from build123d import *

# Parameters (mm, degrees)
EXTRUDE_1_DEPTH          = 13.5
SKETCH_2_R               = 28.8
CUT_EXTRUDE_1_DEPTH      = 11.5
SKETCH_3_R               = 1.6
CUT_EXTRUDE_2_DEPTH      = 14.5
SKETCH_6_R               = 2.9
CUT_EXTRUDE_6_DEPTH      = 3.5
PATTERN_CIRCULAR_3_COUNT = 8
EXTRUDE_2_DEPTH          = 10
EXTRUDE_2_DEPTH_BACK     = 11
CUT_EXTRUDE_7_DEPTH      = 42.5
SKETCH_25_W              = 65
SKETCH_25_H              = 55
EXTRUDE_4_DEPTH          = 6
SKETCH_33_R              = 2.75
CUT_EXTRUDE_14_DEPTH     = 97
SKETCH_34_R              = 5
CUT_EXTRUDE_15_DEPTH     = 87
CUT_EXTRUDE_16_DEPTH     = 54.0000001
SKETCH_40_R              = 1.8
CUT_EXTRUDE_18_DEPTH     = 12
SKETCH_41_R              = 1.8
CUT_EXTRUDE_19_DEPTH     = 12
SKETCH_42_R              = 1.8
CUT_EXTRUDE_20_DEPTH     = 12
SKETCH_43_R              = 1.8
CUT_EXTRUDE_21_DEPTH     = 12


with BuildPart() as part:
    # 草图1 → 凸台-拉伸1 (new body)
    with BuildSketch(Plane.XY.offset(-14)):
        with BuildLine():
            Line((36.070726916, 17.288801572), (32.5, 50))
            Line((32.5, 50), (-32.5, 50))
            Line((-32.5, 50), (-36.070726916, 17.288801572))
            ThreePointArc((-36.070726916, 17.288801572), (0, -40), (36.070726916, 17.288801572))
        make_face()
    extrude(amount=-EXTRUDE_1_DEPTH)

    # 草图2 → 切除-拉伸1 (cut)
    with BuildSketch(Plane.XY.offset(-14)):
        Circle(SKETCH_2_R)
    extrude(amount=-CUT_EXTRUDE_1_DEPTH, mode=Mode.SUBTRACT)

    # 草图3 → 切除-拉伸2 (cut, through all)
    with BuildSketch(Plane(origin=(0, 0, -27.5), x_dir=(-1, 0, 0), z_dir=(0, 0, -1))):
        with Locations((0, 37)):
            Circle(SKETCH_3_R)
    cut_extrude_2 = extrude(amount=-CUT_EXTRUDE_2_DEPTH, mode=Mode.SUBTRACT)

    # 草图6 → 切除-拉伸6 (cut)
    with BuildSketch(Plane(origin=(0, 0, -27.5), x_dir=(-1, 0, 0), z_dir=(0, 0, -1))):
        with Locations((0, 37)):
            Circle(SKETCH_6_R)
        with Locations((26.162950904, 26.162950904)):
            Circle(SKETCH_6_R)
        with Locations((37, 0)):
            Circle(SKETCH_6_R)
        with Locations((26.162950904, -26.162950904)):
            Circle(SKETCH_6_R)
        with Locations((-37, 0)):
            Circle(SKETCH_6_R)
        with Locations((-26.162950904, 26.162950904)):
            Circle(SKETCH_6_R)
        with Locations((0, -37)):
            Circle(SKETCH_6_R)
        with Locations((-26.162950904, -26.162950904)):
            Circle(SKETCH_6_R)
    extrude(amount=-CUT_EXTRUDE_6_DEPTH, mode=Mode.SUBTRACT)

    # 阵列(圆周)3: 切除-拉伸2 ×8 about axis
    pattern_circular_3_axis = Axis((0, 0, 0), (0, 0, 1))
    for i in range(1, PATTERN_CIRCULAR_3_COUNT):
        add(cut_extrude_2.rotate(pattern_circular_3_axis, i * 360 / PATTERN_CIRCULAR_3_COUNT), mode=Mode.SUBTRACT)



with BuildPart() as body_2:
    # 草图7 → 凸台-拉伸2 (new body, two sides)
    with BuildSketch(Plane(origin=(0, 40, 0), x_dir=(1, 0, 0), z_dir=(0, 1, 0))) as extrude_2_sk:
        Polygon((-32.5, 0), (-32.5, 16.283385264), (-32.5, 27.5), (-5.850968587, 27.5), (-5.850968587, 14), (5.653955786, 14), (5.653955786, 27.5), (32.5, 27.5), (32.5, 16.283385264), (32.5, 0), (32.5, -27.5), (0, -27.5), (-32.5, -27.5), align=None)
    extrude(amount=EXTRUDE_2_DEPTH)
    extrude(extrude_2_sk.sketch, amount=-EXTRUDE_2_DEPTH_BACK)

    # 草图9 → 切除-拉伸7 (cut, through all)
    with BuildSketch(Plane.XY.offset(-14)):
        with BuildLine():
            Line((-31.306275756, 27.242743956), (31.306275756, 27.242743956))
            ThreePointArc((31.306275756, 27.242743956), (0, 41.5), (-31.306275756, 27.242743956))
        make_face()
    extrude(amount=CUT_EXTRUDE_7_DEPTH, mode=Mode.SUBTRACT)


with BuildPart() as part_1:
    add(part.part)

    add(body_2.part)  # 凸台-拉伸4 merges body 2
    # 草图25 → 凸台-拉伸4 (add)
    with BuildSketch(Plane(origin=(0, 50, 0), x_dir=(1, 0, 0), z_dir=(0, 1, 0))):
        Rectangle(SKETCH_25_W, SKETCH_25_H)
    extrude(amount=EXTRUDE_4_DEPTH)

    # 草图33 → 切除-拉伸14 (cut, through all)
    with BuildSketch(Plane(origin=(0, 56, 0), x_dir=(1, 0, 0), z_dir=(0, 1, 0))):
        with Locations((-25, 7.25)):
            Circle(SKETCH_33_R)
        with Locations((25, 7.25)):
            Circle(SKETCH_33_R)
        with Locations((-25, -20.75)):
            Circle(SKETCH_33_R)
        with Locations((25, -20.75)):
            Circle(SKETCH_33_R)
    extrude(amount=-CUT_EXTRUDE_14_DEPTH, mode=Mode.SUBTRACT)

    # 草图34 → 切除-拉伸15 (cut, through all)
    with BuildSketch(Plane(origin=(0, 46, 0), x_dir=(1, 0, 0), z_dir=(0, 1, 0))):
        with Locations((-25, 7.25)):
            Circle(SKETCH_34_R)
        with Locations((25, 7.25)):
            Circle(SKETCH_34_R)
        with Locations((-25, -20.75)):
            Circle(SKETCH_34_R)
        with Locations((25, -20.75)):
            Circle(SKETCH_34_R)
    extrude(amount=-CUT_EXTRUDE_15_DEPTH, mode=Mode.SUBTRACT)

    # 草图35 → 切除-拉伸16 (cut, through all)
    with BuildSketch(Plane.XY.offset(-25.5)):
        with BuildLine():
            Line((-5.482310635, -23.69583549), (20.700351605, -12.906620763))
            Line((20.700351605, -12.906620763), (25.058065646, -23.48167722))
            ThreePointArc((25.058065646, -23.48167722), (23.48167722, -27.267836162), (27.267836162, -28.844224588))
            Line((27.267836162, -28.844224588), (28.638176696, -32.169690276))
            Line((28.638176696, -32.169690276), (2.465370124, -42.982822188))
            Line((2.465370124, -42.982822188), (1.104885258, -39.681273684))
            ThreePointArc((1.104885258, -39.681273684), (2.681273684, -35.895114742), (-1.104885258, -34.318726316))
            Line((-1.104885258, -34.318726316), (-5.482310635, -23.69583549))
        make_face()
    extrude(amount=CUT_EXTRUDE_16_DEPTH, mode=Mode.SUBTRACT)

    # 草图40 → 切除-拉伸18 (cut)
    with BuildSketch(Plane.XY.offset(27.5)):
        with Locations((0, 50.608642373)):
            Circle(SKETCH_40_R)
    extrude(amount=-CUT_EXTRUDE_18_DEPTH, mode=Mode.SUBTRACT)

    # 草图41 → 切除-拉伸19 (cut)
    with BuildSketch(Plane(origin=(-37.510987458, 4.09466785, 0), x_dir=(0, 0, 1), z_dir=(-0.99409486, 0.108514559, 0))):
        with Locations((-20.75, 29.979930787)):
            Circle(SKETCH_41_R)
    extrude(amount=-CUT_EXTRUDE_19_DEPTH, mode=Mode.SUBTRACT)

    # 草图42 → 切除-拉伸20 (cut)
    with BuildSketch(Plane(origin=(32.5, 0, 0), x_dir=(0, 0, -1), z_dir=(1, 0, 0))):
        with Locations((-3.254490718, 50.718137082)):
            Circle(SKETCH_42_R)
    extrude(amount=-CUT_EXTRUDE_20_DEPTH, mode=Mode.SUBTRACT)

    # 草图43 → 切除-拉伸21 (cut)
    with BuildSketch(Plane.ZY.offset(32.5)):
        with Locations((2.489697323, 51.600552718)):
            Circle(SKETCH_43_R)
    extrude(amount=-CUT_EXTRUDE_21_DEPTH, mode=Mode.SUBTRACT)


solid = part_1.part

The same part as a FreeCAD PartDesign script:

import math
import FreeCAD as App
import Part
import Sketcher

V = App.Vector
Q = App.Units.Quantity


def add_polygon(sketch, points):
    """Adds a closed chain of lines whose ends are joined by coincident constraints."""
    first, n = sketch.GeometryCount, len(points)
    for a, b in zip(points, points[1:] + points[:1]):
        sketch.addGeometry(Part.LineSegment(App.Vector(*a, 0), App.Vector(*b, 0)), False)
    for i in range(n):
        sketch.addConstraint(Sketcher.Constraint("Coincident", first + i, 2, first + (i + 1) % n, 1))

doc = App.newDocument("Part")
params = doc.addObject("Spreadsheet::Sheet", "Params")
for row, (alias, value) in enumerate([
    ("sketch1_radius", "40 mm"),
    ("sketch1_width", "65 mm"),
    ("pad1_length", "13.5 mm"),
    ("sketch2_diameter", "57.6 mm"),
    ("pocket1_length", "11.5 mm"),
    ("sketch3_diameter", "3.2 mm"),
    ("sketch4_diameter", "5.8 mm"),
    ("pocket3_length", "3.5 mm"),
    ("sketch5_width", "65 mm"),
    ("sketch5_height", "55 mm"),
    ("sketch5_height2", "13.5 mm"),
    ("pad2_length", "10 mm"),
    ("pad2_length2", "11 mm"),
    ("sketch6_radius", "41.5 mm"),
    ("sketch7_width", "65 mm"),
    ("sketch7_height", "55 mm"),
    ("pad3_length", "6 mm"),
    ("sketch8_diameter", "5.5 mm"),
    ("sketch9_diameter", "10 mm"),
    ("sketch10_radius", "2.9 mm"),
    ("sketch11_diameter", "3.6 mm"),
    ("pocket8_length", "12 mm"),
    ("sketch12_diameter", "3.6 mm"),
    ("pocket9_length", "12 mm"),
    ("sketch13_diameter", "3.6 mm"),
    ("pocket10_length", "12 mm"),
    ("sketch14_diameter", "3.6 mm"),
    ("pocket11_length", "12 mm"),
], start=1):
    params.set(f"A{row}", alias)
    params.set(f"B{row}", "=" + value)
    params.setAlias(f"B{row}", alias)

body = doc.addObject("PartDesign::Body", "Body")

sketch1 = body.newObject("Sketcher::SketchObject", "Sketch")
sketch1.AttachmentSupport = (doc.getObject("XY_Plane"), [""])
sketch1.MapMode = "FlatFace"
sketch1.AttachmentOffset = App.Placement(V(0, 0, -14), App.Rotation())
sketch1.addGeometry([
    Part.LineSegment(V(36, 17, 0), V(32, 50, 0)),
    Part.LineSegment(V(32, 50, 0), V(-32, 50, 0)),
    Part.LineSegment(V(-32, 50, 0), V(-36, 17, 0)),
    Part.ArcOfCircle(Part.Circle(V(0, 0, 0), V(0, 0, 1), 40), math.radians(154), math.radians(386)),
], False)
sketch1.addConstraint([
    Sketcher.Constraint("Coincident", 0, 2, 1, 1),
    Sketcher.Constraint("Coincident", 1, 2, 2, 1),
    Sketcher.Constraint("Coincident", 2, 2, 3, 1),
    Sketcher.Constraint("Coincident", 3, 2, 0, 1),
    Sketcher.Constraint("Horizontal", 1),
    Sketcher.Constraint("Coincident", 3, 3, -1, 1),
    Sketcher.Constraint("Horizontal", 2, 2, 3, 2),
    Sketcher.Constraint("Equal", 0, 2),
    Sketcher.Constraint("Radius", 3, Q("40 mm")),
    Sketcher.Constraint("DistanceX", 1, 2, 1, 1, Q("65 mm")),
    Sketcher.Constraint("DistanceY", -1, 1, 0, 2, Q("50 mm")),
    Sketcher.Constraint("DistanceY", -1, 1, 2, 2, Q("17.288802 mm")),
])
sketch1.setExpression("Constraints[8]", "Params.sketch1_radius")
sketch1.setExpression("Constraints[9]", "Params.sketch1_width")
pad1 = body.newObject("PartDesign::Pad", "Pad")
pad1.Profile = sketch1
pad1.setExpression("Length", "Params.pad1_length")
pad1.Reversed = True

sketch2 = body.newObject("Sketcher::SketchObject", "Sketch001")
sketch2.AttachmentSupport = (doc.getObject("XY_Plane"), [""])
sketch2.MapMode = "FlatFace"
sketch2.AttachmentOffset = App.Placement(V(0, 0, -14), App.Rotation())
sketch2.addGeometry(Part.Circle(V(0, 0, 0), V(0, 0, 1), 29), False)
sketch2.addConstraint([
    Sketcher.Constraint("Coincident", 0, 3, -1, 1),
    Sketcher.Constraint("Diameter", 0, Q("57.6 mm")),
])
sketch2.setExpression("Constraints[1]", "Params.sketch2_diameter")
pocket1 = body.newObject("PartDesign::Pocket", "Pocket")
pocket1.Profile = sketch2
pocket1.setExpression("Length", "Params.pocket1_length")

sketch3 = body.newObject("Sketcher::SketchObject", "Sketch002")
sketch3.AttachmentSupport = (doc.getObject("XY_Plane"), [""])
sketch3.MapMode = "FlatFace"
sketch3.AttachmentOffset = App.Placement(V(0, 0, -27.5), App.Rotation())
sketch3.addGeometry(Part.Circle(V(0, 37, 0), V(0, 0, 1), 1.6), False)
sketch3.addConstraint([
    Sketcher.Constraint("PointOnObject", 0, 3, -2),
    Sketcher.Constraint("Diameter", 0, Q("3.2 mm")),
    Sketcher.Constraint("DistanceY", -1, 1, 0, 3, Q("37 mm")),
])
sketch3.setExpression("Constraints[1]", "Params.sketch3_diameter")
pocket2 = body.newObject("PartDesign::Pocket", "Pocket001")
pocket2.Profile = sketch3
pocket2.Type = "ThroughAll"
pocket2.Reversed = True

sketch4 = body.newObject("Sketcher::SketchObject", "Sketch003")
sketch4.AttachmentSupport = (doc.getObject("XY_Plane"), [""])
sketch4.MapMode = "FlatFace"
sketch4.AttachmentOffset = App.Placement(V(0, 0, -27.5), App.Rotation())
sketch4.addGeometry([
    Part.Circle(V(0, 37, 0), V(0, 0, 1), 2.9),
    Part.Circle(V(-26.2, 26.2, 0), V(0, 0, 1), 2.9),
    Part.Circle(V(-37, 0, 0), V(0, 0, 1), 2.9),
    Part.Circle(V(-26.2, -26.2, 0), V(0, 0, 1), 2.9),
    Part.Circle(V(37, 0, 0), V(0, 0, 1), 2.9),
    Part.Circle(V(26.2, 26.2, 0), V(0, 0, 1), 2.9),
    Part.Circle(V(0, -37, 0), V(0, 0, 1), 2.9),
    Part.Circle(V(26.2, -26.2, 0), V(0, 0, 1), 2.9),
], False)
sketch4.addConstraint([
    Sketcher.Constraint("Equal", 0, 1),
    Sketcher.Constraint("Equal", 1, 2),
    Sketcher.Constraint("Equal", 2, 3),
    Sketcher.Constraint("Equal", 3, 4),
    Sketcher.Constraint("Equal", 4, 5),
    Sketcher.Constraint("Equal", 5, 6),
    Sketcher.Constraint("Equal", 6, 7),
    Sketcher.Constraint("Symmetric", 2, 3, 4, 3, -1, 1),
    Sketcher.Constraint("Symmetric", 3, 3, 5, 3, -1, 1),
    Sketcher.Constraint("Symmetric", 0, 3, 6, 3, -1, 1),
    Sketcher.Constraint("Symmetric", 1, 3, 7, 3, -1, 1),
    Sketcher.Constraint("Symmetric", 1, 3, 5, 3, -2),
    Sketcher.Constraint("PointOnObject", 0, 3, -2),
    Sketcher.Constraint("PointOnObject", 2, 3, -1),
    Sketcher.Constraint("Diameter", 0, Q("5.8 mm")),
    Sketcher.Constraint("DistanceY", -1, 1, 0, 3, Q("37 mm")),
    Sketcher.Constraint("DistanceX", 2, 3, -1, 1, Q("37 mm")),
    Sketcher.Constraint("DistanceY", 3, 3, 1, 3, Q("52.325902 mm")),
    Sketcher.Constraint("DistanceX", 1, 3, 5, 3, Q("52.325902 mm")),
])
sketch4.setExpression("Constraints[14]", "Params.sketch4_diameter")
pocket3 = body.newObject("PartDesign::Pocket", "Pocket002")
pocket3.Profile = sketch4
pocket3.setExpression("Length", "Params.pocket3_length")
pocket3.Reversed = True
doc.recompute()

polarpattern = body.newObject("PartDesign::PolarPattern", "PolarPattern")
polarpattern.Originals = [pocket2]
polarpattern.Axis = (doc.getObject("Z_Axis"), [""])
polarpattern.Angle = 360
polarpattern.Occurrences = 8
body.Tip = polarpattern
body2 = doc.addObject("PartDesign::Body", "Body001")

sketch5 = body2.newObject("Sketcher::SketchObject", "Sketch004")
sketch5.AttachmentSupport = (doc.getObject("XZ_Plane001"), [""])
sketch5.MapMode = "FlatFace"
sketch5.AttachmentOffset = App.Placement(V(0, 0, -40), App.Rotation())
add_polygon(sketch5, [(-32, -28), (-32, 28), (32, 28), (32, -28), (6, -28), (6, -14), (-6, -14), (-6, -28)])
sketch5.addConstraint([
    Sketcher.Constraint("Vertical", 0),
    Sketcher.Constraint("Horizontal", 1),
    Sketcher.Constraint("Vertical", 2),
    Sketcher.Constraint("Horizontal", 3),
    Sketcher.Constraint("Vertical", 4),
    Sketcher.Constraint("Horizontal", 5),
    Sketcher.Constraint("Vertical", 6),
    Sketcher.Constraint("Horizontal", 7),
    Sketcher.Constraint("Symmetric", 0, 2, 2, 2, -1, 1),
    Sketcher.Constraint("Horizontal", 3, 2, 6, 2),
    Sketcher.Constraint("DistanceX", 1, 1, 1, 2, Q("65 mm")),
    Sketcher.Constraint("DistanceY", 0, 1, 0, 2, Q("55 mm")),
    Sketcher.Constraint("DistanceY", 4, 1, 4, 2, Q("13.5 mm")),
    Sketcher.Constraint("DistanceX", 7, 2, 7, 1, Q("26.649031 mm")),
    Sketcher.Constraint("DistanceX", 3, 2, 3, 1, Q("26.846044 mm")),
])
sketch5.setExpression("Constraints[18]", "Params.sketch5_width")
sketch5.setExpression("Constraints[19]", "Params.sketch5_height")
sketch5.setExpression("Constraints[20]", "Params.sketch5_height2")
pad2 = body2.newObject("PartDesign::Pad", "Pad001")
pad2.Profile = sketch5
pad2.Type = "TwoLengths"
pad2.setExpression("Length", "Params.pad2_length")
pad2.setExpression("Length2", "Params.pad2_length2")
pad2.Reversed = True

sketch6 = body2.newObject("Sketcher::SketchObject", "Sketch005")
sketch6.AttachmentSupport = (doc.getObject("XY_Plane001"), [""])
sketch6.MapMode = "FlatFace"
sketch6.AttachmentOffset = App.Placement(V(0, 0, -14), App.Rotation())
sketch6.addGeometry([
    Part.LineSegment(V(-31, 27, 0), V(31, 27, 0)),
    Part.ArcOfCircle(Part.Circle(V(0, 0, 0), V(0, 0, 1), 41), math.radians(41), math.radians(139)),
], False)
sketch6.addConstraint([
    Sketcher.Constraint("Coincident", 0, 1, 1, 2),
    Sketcher.Constraint("Coincident", 1, 1, 0, 2),
    Sketcher.Constraint("Horizontal", 0),
    Sketcher.Constraint("Coincident", 1, 3, -1, 1),
    Sketcher.Constraint("Radius", 1, Q("41.5 mm")),
    Sketcher.Constraint("DistanceX", 0, 1, 0, 2, Q("62.612552 mm")),
])
sketch6.setExpression("Constraints[4]", "Params.sketch6_radius")
pocket4 = body2.newObject("PartDesign::Pocket", "Pocket003")
pocket4.Profile = sketch6
pocket4.Type = "ThroughAll"
pocket4.Reversed = True
doc.recompute()

boolean = body.newObject("PartDesign::Boolean", "Boolean")
boolean.Type = "Fuse"
boolean.addObjects([body2])

sketch7 = body.newObject("Sketcher::SketchObject", "Sketch006")
sketch7.AttachmentSupport = (doc.getObject("XZ_Plane"), [""])
sketch7.MapMode = "FlatFace"
sketch7.AttachmentOffset = App.Placement(V(0, 0, -50), App.Rotation())
add_polygon(sketch7, [(-32, -28), (-32, 28), (32, 28), (32, -28)])
sketch7.addConstraint([
    Sketcher.Constraint("Vertical", 0),
    Sketcher.Constraint("Horizontal", 1),
    Sketcher.Constraint("Vertical", 2),
    Sketcher.Constraint("Horizontal", 3),
    Sketcher.Constraint("Symmetric", 0, 2, 2, 2, -1, 1),
    Sketcher.Constraint("DistanceX", 1, 1, 1, 2, Q("65 mm")),
    Sketcher.Constraint("DistanceY", 0, 1, 0, 2, Q("55 mm")),
])
sketch7.setExpression("Constraints[9]", "Params.sketch7_width")
sketch7.setExpression("Constraints[10]", "Params.sketch7_height")
pad3 = body.newObject("PartDesign::Pad", "Pad002")
pad3.Profile = sketch7
pad3.setExpression("Length", "Params.pad3_length")
pad3.Reversed = True

sketch8 = body.newObject("Sketcher::SketchObject", "Sketch007")
sketch8.AttachmentSupport = (doc.getObject("XZ_Plane"), [""])
sketch8.MapMode = "FlatFace"
sketch8.AttachmentOffset = App.Placement(V(0, 0, -56), App.Rotation())
sketch8.addGeometry([
    Part.Circle(V(-25, -7.2, 0), V(0, 0, 1), 2.8),
    Part.Circle(V(25, -7.2, 0), V(0, 0, 1), 2.8),
    Part.Circle(V(-25, 20.8, 0), V(0, 0, 1), 2.8),
    Part.Circle(V(25, 20.8, 0), V(0, 0, 1), 2.8),
], False)
sketch8.addConstraint([
    Sketcher.Constraint("Equal", 0, 1),
    Sketcher.Constraint("Equal", 1, 2),
    Sketcher.Constraint("Equal", 2, 3),
    Sketcher.Constraint("Symmetric", 0, 3, 1, 3, -2),
    Sketcher.Constraint("Symmetric", 2, 3, 3, 3, -2),
    Sketcher.Constraint("Vertical", 0, 3, 2, 3),
    Sketcher.Constraint("Diameter", 0, Q("5.5 mm")),
    Sketcher.Constraint("DistanceX", 0, 3, -1, 1, Q("25 mm")),
    Sketcher.Constraint("DistanceY", 0, 3, 2, 3, Q("28 mm")),
    Sketcher.Constraint("DistanceY", 0, 3, -1, 1, Q("7.25 mm")),
])
sketch8.setExpression("Constraints[6]", "Params.sketch8_diameter")
pocket5 = body.newObject("PartDesign::Pocket", "Pocket004")
pocket5.Profile = sketch8
pocket5.Type = "ThroughAll"
pocket5.Reversed = True

sketch9 = body.newObject("Sketcher::SketchObject", "Sketch008")
sketch9.AttachmentSupport = (doc.getObject("XZ_Plane"), [""])
sketch9.MapMode = "FlatFace"
sketch9.AttachmentOffset = App.Placement(V(0, 0, -46), App.Rotation())
sketch9.addGeometry([
    Part.Circle(V(-25, -7, 0), V(0, 0, 1), 5),
    Part.Circle(V(25, -7, 0), V(0, 0, 1), 5),
    Part.Circle(V(-25, 21, 0), V(0, 0, 1), 5),
    Part.Circle(V(25, 21, 0), V(0, 0, 1), 5),
], False)
sketch9.addConstraint([
    Sketcher.Constraint("Equal", 0, 1),
    Sketcher.Constraint("Equal", 1, 2),
    Sketcher.Constraint("Equal", 2, 3),
    Sketcher.Constraint("Symmetric", 0, 3, 1, 3, -2),
    Sketcher.Constraint("Symmetric", 2, 3, 3, 3, -2),
    Sketcher.Constraint("Vertical", 0, 3, 2, 3),
    Sketcher.Constraint("Diameter", 0, Q("10 mm")),
    Sketcher.Constraint("DistanceX", 0, 3, -1, 1, Q("25 mm")),
    Sketcher.Constraint("DistanceY", 0, 3, 2, 3, Q("28 mm")),
    Sketcher.Constraint("DistanceY", 0, 3, -1, 1, Q("7.25 mm")),
])
sketch9.setExpression("Constraints[6]", "Params.sketch9_diameter")
pocket6 = body.newObject("PartDesign::Pocket", "Pocket005")
pocket6.Profile = sketch9
pocket6.Type = "ThroughAll"
pocket6.Reversed = True

sketch10 = body.newObject("Sketcher::SketchObject", "Sketch009")
sketch10.AttachmentSupport = (doc.getObject("XY_Plane"), [""])
sketch10.MapMode = "FlatFace"
sketch10.AttachmentOffset = App.Placement(V(0, 0, -25.5), App.Rotation())
sketch10.addGeometry([
    Part.LineSegment(V(20.7, -12.9, 0), V(-5.5, -23.7, 0)),
    Part.LineSegment(V(-5.5, -23.7, 0), V(-1.1, -34.3, 0)),
    Part.ArcOfCircle(Part.Circle(V(0, -37, 0), V(0, 0, 1), 2.9), math.radians(-68), math.radians(112)),
    Part.LineSegment(V(1.1, -39.7, 0), V(2.5, -43, 0)),
    Part.LineSegment(V(2.5, -43, 0), V(28.6, -32.2, 0)),
    Part.LineSegment(V(28.6, -32.2, 0), V(27.3, -28.8, 0)),
    Part.ArcOfCircle(Part.Circle(V(26.2, -26.2, 0), V(0, 0, 1), 2.9), math.radians(112), math.radians(292)),
    Part.LineSegment(V(25.1, -23.5, 0), V(20.7, -12.9, 0)),
], False)
sketch10.addConstraint([
    Sketcher.Constraint("Coincident", 0, 2, 1, 1),
    Sketcher.Constraint("Coincident", 1, 2, 2, 2),
    Sketcher.Constraint("Coincident", 2, 1, 3, 1),
    Sketcher.Constraint("Coincident", 3, 2, 4, 1),
    Sketcher.Constraint("Coincident", 4, 2, 5, 1),
    Sketcher.Constraint("Coincident", 5, 2, 6, 2),
    Sketcher.Constraint("Coincident", 6, 1, 7, 1),
    Sketcher.Constraint("Coincident", 7, 2, 0, 1),
    Sketcher.Constraint("Equal", 2, 6),
    Sketcher.Constraint("PointOnObject", 2, 3, -2),
    Sketcher.Constraint("Perpendicular", 0, 1),
    Sketcher.Constraint("Parallel", 1, 3),
    Sketcher.Constraint("Parallel", 3, 5),
    Sketcher.Constraint("Parallel", 5, 7),
    Sketcher.Constraint("Radius", 2, Q("2.9 mm")),
    Sketcher.Constraint("DistanceY", 2, 3, -1, 1, Q("37 mm")),
    Sketcher.Constraint("DistanceX", 7, 2, 6, 3, Q("5.462599 mm")),
    Sketcher.Constraint("Distance", 1, Q("11.489459 mm")),
    Sketcher.Constraint("Distance", 4, Q("28.318539 mm")),
    Sketcher.Constraint("DistanceX", -1, 1, 6, 3, Q("26.162951 mm")),
    Sketcher.Constraint("DistanceY", 6, 3, -1, 1, Q("26.162951 mm")),
    Sketcher.Constraint("DistanceX", 0, 2, -1, 1, Q("5.482311 mm")),
    Sketcher.Constraint("DistanceX", -1, 1, 3, 2, Q("2.46537 mm")),
    Sketcher.Constraint("DistanceY", 4, 2, -1, 1, Q("32.16969 mm")),
    Sketcher.Constraint("DistanceY", 7, 2, -1, 1, Q("12.906621 mm")),
    Sketcher.Constraint("DistanceX", 1, 2, 2, 1, Q("2.209771 mm")),
])
sketch10.setExpression("Constraints[14]", "Params.sketch10_radius")
pocket7 = body.newObject("PartDesign::Pocket", "Pocket006")
pocket7.Profile = sketch10
pocket7.Type = "ThroughAll"
pocket7.Reversed = True

sketch11 = body.newObject("Sketcher::SketchObject", "Sketch010")
sketch11.AttachmentSupport = (doc.getObject("XY_Plane"), [""])
sketch11.MapMode = "FlatFace"
sketch11.AttachmentOffset = App.Placement(V(0, 0, 27.5), App.Rotation())
sketch11.addGeometry(Part.Circle(V(0, 50.6, 0), V(0, 0, 1), 1.8), False)
sketch11.addConstraint([
    Sketcher.Constraint("PointOnObject", 0, 3, -2),
    Sketcher.Constraint("Diameter", 0, Q("3.6 mm")),
    Sketcher.Constraint("DistanceY", -1, 1, 0, 3, Q("50.608642 mm")),
])
sketch11.setExpression("Constraints[1]", "Params.sketch11_diameter")
pocket8 = body.newObject("PartDesign::Pocket", "Pocket007")
pocket8.Profile = sketch11
pocket8.setExpression("Length", "Params.pocket8_length")

sketch12 = body.newObject("Sketcher::SketchObject", "Sketch011")
sketch12.Placement = App.Placement(V(-37.510987, 4.094668, 0), App.Rotation(V(0, 0, 1), V(0.108514559, 0.99409486, 0), V(-0.99409486, 0.108514559, 0), "ZXY"))
sketch12.addGeometry(Part.Circle(V(-20.8, 30, 0), V(0, 0, 1), 1.8), False)
sketch12.addConstraint([
    Sketcher.Constraint("Diameter", 0, Q("3.6 mm")),
    Sketcher.Constraint("DistanceX", 0, 3, -1, 1, Q("20.75 mm")),
    Sketcher.Constraint("DistanceY", -1, 1, 0, 3, Q("29.979931 mm")),
])
sketch12.setExpression("Constraints[0]", "Params.sketch12_diameter")
pocket9 = body.newObject("PartDesign::Pocket", "Pocket008")
pocket9.Profile = sketch12
pocket9.setExpression("Length", "Params.pocket9_length")

sketch13 = body.newObject("Sketcher::SketchObject", "Sketch012")
sketch13.AttachmentSupport = (doc.getObject("YZ_Plane"), [""])
sketch13.MapMode = "FlatFace"
sketch13.AttachmentOffset = App.Placement(V(0, 0, 32.5), App.Rotation())
sketch13.addGeometry(Part.Circle(V(50.7, 3.3, 0), V(0, 0, 1), 1.8), False)
sketch13.addConstraint([
    Sketcher.Constraint("Diameter", 0, Q("3.6 mm")),
    Sketcher.Constraint("DistanceY", -1, 1, 0, 3, Q("3.254491 mm")),
    Sketcher.Constraint("DistanceX", -1, 1, 0, 3, Q("50.718137 mm")),
])
sketch13.setExpression("Constraints[0]", "Params.sketch13_diameter")
pocket10 = body.newObject("PartDesign::Pocket", "Pocket009")
pocket10.Profile = sketch13
pocket10.setExpression("Length", "Params.pocket10_length")

sketch14 = body.newObject("Sketcher::SketchObject", "Sketch013")
sketch14.AttachmentSupport = (doc.getObject("YZ_Plane"), [""])
sketch14.MapMode = "FlatFace"
sketch14.AttachmentOffset = App.Placement(V(0, 0, -32.5), App.Rotation())
sketch14.addGeometry(Part.Circle(V(51.6, 2.5, 0), V(0, 0, 1), 1.8), False)
sketch14.addConstraint([
    Sketcher.Constraint("Diameter", 0, Q("3.6 mm")),
    Sketcher.Constraint("DistanceX", -1, 1, 0, 3, Q("51.600553 mm")),
    Sketcher.Constraint("DistanceY", -1, 1, 0, 3, Q("2.489697 mm")),
])
sketch14.setExpression("Constraints[0]", "Params.sketch14_diameter")
pocket11 = body.newObject("PartDesign::Pocket", "Pocket010")
pocket11.Profile = sketch14
pocket11.setExpression("Length", "Params.pocket11_length")
pocket11.Reversed = True

doc.recompute()
